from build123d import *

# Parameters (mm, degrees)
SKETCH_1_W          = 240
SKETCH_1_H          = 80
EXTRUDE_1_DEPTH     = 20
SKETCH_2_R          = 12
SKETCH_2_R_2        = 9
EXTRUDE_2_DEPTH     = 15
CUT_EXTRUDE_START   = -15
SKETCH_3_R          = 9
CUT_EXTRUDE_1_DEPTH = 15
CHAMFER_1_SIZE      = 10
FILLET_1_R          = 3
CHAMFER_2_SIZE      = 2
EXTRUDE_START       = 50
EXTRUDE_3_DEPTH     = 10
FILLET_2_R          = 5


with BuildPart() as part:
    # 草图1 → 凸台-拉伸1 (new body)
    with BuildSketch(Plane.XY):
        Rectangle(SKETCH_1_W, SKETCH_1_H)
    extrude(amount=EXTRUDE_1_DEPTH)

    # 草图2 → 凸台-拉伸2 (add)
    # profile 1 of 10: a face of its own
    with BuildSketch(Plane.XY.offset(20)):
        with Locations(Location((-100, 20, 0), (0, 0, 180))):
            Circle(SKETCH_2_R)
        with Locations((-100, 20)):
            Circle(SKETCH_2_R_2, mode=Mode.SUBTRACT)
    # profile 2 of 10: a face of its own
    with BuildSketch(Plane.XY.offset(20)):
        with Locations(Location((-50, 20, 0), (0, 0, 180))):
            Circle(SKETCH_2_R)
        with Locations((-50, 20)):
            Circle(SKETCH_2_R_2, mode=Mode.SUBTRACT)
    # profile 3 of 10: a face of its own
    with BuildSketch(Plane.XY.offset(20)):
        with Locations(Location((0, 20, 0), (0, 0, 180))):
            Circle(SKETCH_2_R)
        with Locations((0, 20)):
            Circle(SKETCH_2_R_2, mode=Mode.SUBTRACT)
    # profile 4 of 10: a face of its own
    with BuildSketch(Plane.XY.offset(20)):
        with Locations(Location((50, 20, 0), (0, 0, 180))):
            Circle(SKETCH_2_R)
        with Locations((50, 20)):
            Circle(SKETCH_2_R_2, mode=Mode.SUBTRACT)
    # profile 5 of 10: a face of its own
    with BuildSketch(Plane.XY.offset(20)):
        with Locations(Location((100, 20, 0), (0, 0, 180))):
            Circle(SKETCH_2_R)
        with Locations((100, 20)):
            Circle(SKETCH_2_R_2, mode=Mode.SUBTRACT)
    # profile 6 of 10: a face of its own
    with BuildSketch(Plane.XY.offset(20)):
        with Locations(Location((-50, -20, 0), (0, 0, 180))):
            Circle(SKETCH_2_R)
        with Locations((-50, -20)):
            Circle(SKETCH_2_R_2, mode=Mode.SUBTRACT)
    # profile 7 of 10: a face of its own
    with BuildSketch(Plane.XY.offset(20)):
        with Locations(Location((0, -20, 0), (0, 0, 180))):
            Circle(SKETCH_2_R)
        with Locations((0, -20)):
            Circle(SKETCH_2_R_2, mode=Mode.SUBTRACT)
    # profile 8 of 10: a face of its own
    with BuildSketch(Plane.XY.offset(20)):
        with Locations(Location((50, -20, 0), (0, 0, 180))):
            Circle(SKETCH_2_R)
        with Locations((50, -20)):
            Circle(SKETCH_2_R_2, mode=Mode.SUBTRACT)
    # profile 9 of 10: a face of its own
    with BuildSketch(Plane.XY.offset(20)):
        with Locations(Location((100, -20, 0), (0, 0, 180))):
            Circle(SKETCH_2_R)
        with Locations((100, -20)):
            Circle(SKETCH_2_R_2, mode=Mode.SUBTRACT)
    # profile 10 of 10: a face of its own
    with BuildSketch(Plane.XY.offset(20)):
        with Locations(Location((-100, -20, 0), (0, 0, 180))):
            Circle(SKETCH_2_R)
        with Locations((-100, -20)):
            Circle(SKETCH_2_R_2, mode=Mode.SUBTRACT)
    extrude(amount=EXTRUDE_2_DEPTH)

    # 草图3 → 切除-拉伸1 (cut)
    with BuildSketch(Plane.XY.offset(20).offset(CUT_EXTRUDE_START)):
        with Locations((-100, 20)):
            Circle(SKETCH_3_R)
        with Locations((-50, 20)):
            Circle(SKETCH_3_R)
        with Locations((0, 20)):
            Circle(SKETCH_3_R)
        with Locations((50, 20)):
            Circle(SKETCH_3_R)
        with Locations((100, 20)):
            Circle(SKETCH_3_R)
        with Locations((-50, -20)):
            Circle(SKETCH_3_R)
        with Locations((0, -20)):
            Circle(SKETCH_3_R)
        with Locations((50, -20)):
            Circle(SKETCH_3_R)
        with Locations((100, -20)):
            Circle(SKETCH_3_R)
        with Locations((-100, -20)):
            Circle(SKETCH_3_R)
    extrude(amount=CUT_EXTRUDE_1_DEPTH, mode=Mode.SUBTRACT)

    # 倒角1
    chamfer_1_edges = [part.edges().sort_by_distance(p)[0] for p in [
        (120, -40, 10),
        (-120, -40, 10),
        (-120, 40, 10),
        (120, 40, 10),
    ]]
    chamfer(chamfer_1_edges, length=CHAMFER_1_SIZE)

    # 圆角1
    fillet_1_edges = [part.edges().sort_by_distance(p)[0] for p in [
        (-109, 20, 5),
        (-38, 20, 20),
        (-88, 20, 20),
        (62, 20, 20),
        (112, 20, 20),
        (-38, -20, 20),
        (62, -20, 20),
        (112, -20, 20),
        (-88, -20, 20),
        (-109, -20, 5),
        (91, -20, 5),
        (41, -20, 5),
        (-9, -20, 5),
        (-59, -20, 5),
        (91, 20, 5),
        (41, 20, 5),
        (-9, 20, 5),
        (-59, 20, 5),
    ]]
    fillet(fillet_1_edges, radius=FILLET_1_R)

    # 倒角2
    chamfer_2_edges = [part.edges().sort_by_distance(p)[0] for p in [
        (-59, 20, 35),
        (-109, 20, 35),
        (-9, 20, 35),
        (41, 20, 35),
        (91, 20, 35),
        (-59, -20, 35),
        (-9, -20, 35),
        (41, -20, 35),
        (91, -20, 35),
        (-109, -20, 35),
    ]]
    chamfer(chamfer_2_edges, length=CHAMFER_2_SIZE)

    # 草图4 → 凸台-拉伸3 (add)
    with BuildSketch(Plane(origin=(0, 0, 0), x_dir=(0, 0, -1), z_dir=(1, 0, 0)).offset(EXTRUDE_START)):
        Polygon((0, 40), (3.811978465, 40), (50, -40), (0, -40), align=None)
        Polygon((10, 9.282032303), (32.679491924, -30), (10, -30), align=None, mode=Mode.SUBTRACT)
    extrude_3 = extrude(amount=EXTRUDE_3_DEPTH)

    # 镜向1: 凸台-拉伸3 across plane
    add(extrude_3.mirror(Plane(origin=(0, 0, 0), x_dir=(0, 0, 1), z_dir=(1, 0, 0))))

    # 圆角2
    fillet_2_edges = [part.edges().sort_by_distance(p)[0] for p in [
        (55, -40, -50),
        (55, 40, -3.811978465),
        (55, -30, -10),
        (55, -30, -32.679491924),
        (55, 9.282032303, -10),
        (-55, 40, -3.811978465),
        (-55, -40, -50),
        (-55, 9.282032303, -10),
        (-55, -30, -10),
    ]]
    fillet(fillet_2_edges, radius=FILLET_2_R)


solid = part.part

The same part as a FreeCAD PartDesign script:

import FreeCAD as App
import Part
import Sketcher
from FreeCAD import Vector
Q = App.Units.Quantity


def edges_at(feature, points):
    """Names of the edges that pass closest to the given points."""
    edges = feature.Shape.Edges
    near = lambda p: min(range(len(edges)), key=lambda i: edges[i].distToShape(Part.Vertex(*p))[0])
    return sorted({f"Edge{near(p) + 1}" for p in points})

doc = App.newDocument("Part")
body = doc.addObject("PartDesign::Body", "Body")

# Sketch on XY plane
sketch1 = doc.addObject("Sketcher::SketchObject", "Sketch")
body.addObject(sketch1)
sketch1.AttachmentSupport = (doc.XY_Plane, [""])
sketch1.MapMode = "FlatFace"
sketch1.addGeometry([
    Part.LineSegment(Vector(-120, 40, 0), Vector(-120, -40, 0)),
    Part.LineSegment(Vector(-120, -40, 0), Vector(120, -40, 0)),
    Part.LineSegment(Vector(120, -40, 0), Vector(120, 40, 0)),
    Part.LineSegment(Vector(120, 40, 0), Vector(-120, 40, 0)),
], False)
sketch1.addConstraint([
    Sketcher.Constraint("Coincident", 0, 2, 1, 1),
    Sketcher.Constraint("Coincident", 1, 2, 2, 1),
    Sketcher.Constraint("Coincident", 2, 2, 3, 1),
    Sketcher.Constraint("Coincident", 3, 2, 0, 1),
    Sketcher.Constraint("Vertical", 0),
    Sketcher.Constraint("Horizontal", 1),
    Sketcher.Constraint("Vertical", 2),
    Sketcher.Constraint("Horizontal", 3),
    Sketcher.Constraint("Symmetric", 0, 2, 2, 2, -1, 1),
    Sketcher.Constraint("DistanceX", 1, 1, 1, 2, 240.0),
    Sketcher.Constraint("DistanceY", 0, 2, 0, 1, 80.0),
])
pad1 = doc.addObject("PartDesign::Pad", "Pad")
body.addObject(pad1)
pad1.Profile = sketch1
pad1.Length = 20

# Sketch on XY plane
sketch2 = doc.addObject("Sketcher::SketchObject", "Sketch001")
body.addObject(sketch2)
sketch2.AttachmentSupport = (doc.XY_Plane, [""])
sketch2.MapMode = "FlatFace"
sketch2.AttachmentOffset = App.Placement(Vector(0, 0, 20), App.Rotation())
sketch2.addGeometry([
    Part.Circle(Vector(-100, 20, 0), Vector(0, 0, 1), 12),  # 0
    Part.Circle(Vector(-100, 20, 0), Vector(0, 0, 1), 9),  # 1
    Part.Circle(Vector(-50, 20, 0), Vector(0, 0, 1), 12),  # 2
    Part.Circle(Vector(-50, 20, 0), Vector(0, 0, 1), 9),  # 3
    Part.Circle(Vector(0, 20, 0), Vector(0, 0, 1), 12),  # 4
    Part.Circle(Vector(0, 20, 0), Vector(0, 0, 1), 9),  # 5
    Part.Circle(Vector(50, 20, 0), Vector(0, 0, 1), 12),  # 6
    Part.Circle(Vector(50, 20, 0), Vector(0, 0, 1), 9),  # 7
    Part.Circle(Vector(100, 20, 0), Vector(0, 0, 1), 12),  # 8
    Part.Circle(Vector(100, 20, 0), Vector(0, 0, 1), 9),  # 9
    Part.Circle(Vector(-50, -20, 0), Vector(0, 0, 1), 12),  # 10
    Part.Circle(Vector(-50, -20, 0), Vector(0, 0, 1), 9),  # 11
    Part.Circle(Vector(0, -20, 0), Vector(0, 0, 1), 12),  # 12
    Part.Circle(Vector(0, -20, 0), Vector(0, 0, 1), 9),  # 13
    Part.Circle(Vector(50, -20, 0), Vector(0, 0, 1), 12),  # 14
    Part.Circle(Vector(50, -20, 0), Vector(0, 0, 1), 9),  # 15
    Part.Circle(Vector(100, -20, 0), Vector(0, 0, 1), 12),  # 16
    Part.Circle(Vector(100, -20, 0), Vector(0, 0, 1), 9),  # 17
    Part.Circle(Vector(-100, -20, 0), Vector(0, 0, 1), 12),  # 18
    Part.Circle(Vector(-100, -20, 0), Vector(0, 0, 1), 9),  # 19
], False)
sketch2.addConstraint([
    Sketcher.Constraint("Coincident", 1, 3, 0, 3),
    Sketcher.Constraint("Coincident", 3, 3, 2, 3),
    Sketcher.Constraint("Coincident", 5, 3, 4, 3),
    Sketcher.Constraint("Coincident", 7, 3, 6, 3),
    Sketcher.Constraint("Coincident", 9, 3, 8, 3),
    Sketcher.Constraint("Coincident", 11, 3, 10, 3),
    Sketcher.Constraint("Coincident", 13, 3, 12, 3),
    Sketcher.Constraint("Coincident", 15, 3, 14, 3),
    Sketcher.Constraint("Coincident", 17, 3, 16, 3),
    Sketcher.Constraint("Coincident", 19, 3, 18, 3),
    Sketcher.Constraint("Equal", 0, 2),
    Sketcher.Constraint("Equal", 1, 3),
    Sketcher.Constraint("Equal", 2, 4),
    Sketcher.Constraint("Equal", 3, 5),
    Sketcher.Constraint("Equal", 4, 6),
    Sketcher.Constraint("Equal", 5, 7),
    Sketcher.Constraint("Equal", 6, 8),
    Sketcher.Constraint("Equal", 7, 9),
    Sketcher.Constraint("Equal", 8, 10),
    Sketcher.Constraint("Equal", 9, 11),
    Sketcher.Constraint("Equal", 10, 12),
    Sketcher.Constraint("Equal", 11, 13),
    Sketcher.Constraint("Equal", 12, 14),
    Sketcher.Constraint("Equal", 13, 15),
    Sketcher.Constraint("Equal", 14, 16),
    Sketcher.Constraint("Equal", 15, 17),
    Sketcher.Constraint("Equal", 16, 18),
    Sketcher.Constraint("Equal", 17, 19),
    Sketcher.Constraint("Symmetric", 6, 3, 10, 3, -1, 1),
    Sketcher.Constraint("Symmetric", 4, 3, 12, 3, -1, 1),
    Sketcher.Constraint("Symmetric", 2, 3, 14, 3, -1, 1),
    Sketcher.Constraint("Symmetric", 0, 3, 16, 3, -1, 1),
    Sketcher.Constraint("Symmetric", 8, 3, 18, 3, -1, 1),
    Sketcher.Constraint("Symmetric", 2, 3, 6, 3, -2),
    Sketcher.Constraint("Symmetric", 0, 3, 8, 3, -2),
    Sketcher.Constraint("PointOnObject", 4, 3, -2),
    Sketcher.Constraint("Horizontal", 1, 3, 2, 3),
    Sketcher.Constraint("Horizontal", 3, 3, 4, 3),
    Sketcher.Constraint("Diameter", 0, 24.0),
    Sketcher.Constraint("Diameter", 1, 18.0),
    Sketcher.Constraint("DistanceX", 0, 3, -1, 1, 100.0),
    Sketcher.Constraint("DistanceY", -1, 1, 0, 3, 20.0),
    Sketcher.Constraint("DistanceX", 2, 3, -1, 1, 50.0),
])
pad2 = doc.addObject("PartDesign::Pad", "Pad001")
body.addObject(pad2)
pad2.Profile = sketch2
pad2.Length = 15

# Sketch on XY plane
sketch3 = doc.addObject("Sketcher::SketchObject", "Sketch002")
body.addObject(sketch3)
sketch3.AttachmentSupport = (doc.XY_Plane, [""])
sketch3.MapMode = "FlatFace"
sketch3.AttachmentOffset = App.Placement(Vector(0, 0, 5), App.Rotation())
sketch3.addGeometry([
    Part.Circle(Vector(-100, 20, 0), Vector(0, 0, 1), 9),  # 0
    Part.Circle(Vector(-50, 20, 0), Vector(0, 0, 1), 9),  # 1
    Part.Circle(Vector(0, 20, 0), Vector(0, 0, 1), 9),  # 2
    Part.Circle(Vector(50, 20, 0), Vector(0, 0, 1), 9),  # 3
    Part.Circle(Vector(100, 20, 0), Vector(0, 0, 1), 9),  # 4
    Part.Circle(Vector(-50, -20, 0), Vector(0, 0, 1), 9),  # 5
    Part.Circle(Vector(0, -20, 0), Vector(0, 0, 1), 9),  # 6
    Part.Circle(Vector(50, -20, 0), Vector(0, 0, 1), 9),  # 7
    Part.Circle(Vector(100, -20, 0), Vector(0, 0, 1), 9),  # 8
    Part.Circle(Vector(-100, -20, 0), Vector(0, 0, 1), 9),  # 9
], False)
sketch3.addConstraint([
    Sketcher.Constraint("Equal", 0, 1),
    Sketcher.Constraint("Equal", 1, 2),
    Sketcher.Constraint("Equal", 2, 3),
    Sketcher.Constraint("Equal", 3, 4),
    Sketcher.Constraint("Equal", 4, 5),
    Sketcher.Constraint("Equal", 5, 6),
    Sketcher.Constraint("Equal", 6, 7),
    Sketcher.Constraint("Equal", 7, 8),
    Sketcher.Constraint("Equal", 8, 9),
    Sketcher.Constraint("Symmetric", 3, 3, 5, 3, -1, 1),
    Sketcher.Constraint("Symmetric", 2, 3, 6, 3, -1, 1),
    Sketcher.Constraint("Symmetric", 1, 3, 7, 3, -1, 1),
    Sketcher.Constraint("Symmetric", 0, 3, 8, 3, -1, 1),
    Sketcher.Constraint("Symmetric", 4, 3, 9, 3, -1, 1),
    Sketcher.Constraint("Symmetric", 1, 3, 3, 3, -2),
    Sketcher.Constraint("Symmetric", 0, 3, 4, 3, -2),
    Sketcher.Constraint("PointOnObject", 2, 3, -2),
    Sketcher.Constraint("Horizontal", 0, 3, 1, 3),
    Sketcher.Constraint("Horizontal", 1, 3, 2, 3),
    Sketcher.Constraint("Diameter", 0, 18.0),
    Sketcher.Constraint("DistanceX", 0, 3, -1, 1, 100.0),
    Sketcher.Constraint("DistanceY", -1, 1, 0, 3, 20.0),
    Sketcher.Constraint("DistanceX", 1, 3, -1, 1, 50.0),
])
pocket1 = doc.addObject("PartDesign::Pocket", "Pocket")
body.addObject(pocket1)
pocket1.Profile = sketch3
pocket1.Length = 15
pocket1.Reversed = True
doc.recompute()

chamfer = doc.addObject("PartDesign::Chamfer", "Chamfer")
body.addObject(chamfer)
chamfer.Base = (pocket1, edges_at(pocket1, [
    (120, -40, 10),
    (-120, -40, 10),
    (-120, 40, 10),
    (120, 40, 10),
]))
chamfer.Size = 10
doc.recompute()

fillet = doc.addObject("PartDesign::Fillet", "Fillet")
body.addObject(fillet)
fillet.Base = (chamfer, edges_at(chamfer, [
    (-109, 20, 5),
    (-38, 20, 20),
    (-88, 20, 20),
    (62, 20, 20),
    (112, 20, 20),
    (-38, -20, 20),
    (62, -20, 20),
    (112, -20, 20),
    (-88, -20, 20),
    (-109, -20, 5),
    (91, -20, 5),
    (41, -20, 5),
    (-9, -20, 5),
    (-59, -20, 5),
    (91, 20, 5),
    (41, 20, 5),
    (-9, 20, 5),
    (-59, 20, 5),
]))
fillet.Radius = 3
doc.recompute()

chamfer2 = doc.addObject("PartDesign::Chamfer", "Chamfer001")
body.addObject(chamfer2)
chamfer2.Base = (fillet, edges_at(fillet, [
    (-59, 20, 35),
    (-109, 20, 35),
    (-9, 20, 35),
    (41, 20, 35),
    (91, 20, 35),
    (-59, -20, 35),
    (-9, -20, 35),
    (41, -20, 35),
    (91, -20, 35),
    (-109, -20, 35),
]))
chamfer2.Size = 2

# Sketch on YZ plane
sketch4 = doc.addObject("Sketcher::SketchObject", "Sketch003")
body.addObject(sketch4)
sketch4.AttachmentSupport = (doc.YZ_Plane, [""])
sketch4.MapMode = "FlatFace"
sketch4.AttachmentOffset = App.Placement(Vector(0, 0, 50), App.Rotation())
sketch4.addGeometry([
    Part.LineSegment(Vector(40, -3.811978, 0), Vector(40, 0, 0)),  # 0
    Part.LineSegment(Vector(40, 0, 0), Vector(-40, 0, 0)),  # 1
    Part.LineSegment(Vector(-40, 0, 0), Vector(-40, -50, 0)),  # 2
    Part.LineSegment(Vector(-40, -50, 0), Vector(40, -3.811978, 0)),  # 3
    Part.LineSegment(Vector(9.282032, -10, 0), Vector(-30, -32.679492, 0)),  # 4
    Part.LineSegment(Vector(-30, -32.679492, 0), Vector(-30, -10, 0)),  # 5
    Part.LineSegment(Vector(-30, -10, 0), Vector(9.282032, -10, 0)),  # 6
], False)
sketch4.addConstraint([
    Sketcher.Constraint("Coincident", 0, 2, 1, 1),
    Sketcher.Constraint("Coincident", 1, 2, 2, 1),
    Sketcher.Constraint("Coincident", 2, 2, 3, 1),
    Sketcher.Constraint("Coincident", 3, 2, 0, 1),
    Sketcher.Constraint("Coincident", 4, 2, 5, 1),
    Sketcher.Constraint("Coincident", 5, 2, 6, 1),
    Sketcher.Constraint("Coincident", 6, 2, 4, 1),
    Sketcher.Constraint("Vertical", 0),
    Sketcher.Constraint("Horizontal", 1),
    Sketcher.Constraint("Vertical", 2),
    Sketcher.Constraint("Vertical", 5),
    Sketcher.Constraint("Horizontal", 6),
    Sketcher.Constraint("Symmetric", 0, 2, 1, 2, -1, 1),
    Sketcher.Constraint("Parallel", 3, 4),
    Sketcher.Constraint("DistanceX", 1, 2, 1, 1, 80.0),
    Sketcher.Constraint("DistanceY", 2, 2, 2, 1, 50.0),
    Sketcher.Constraint("Angle", 3, Q("30 deg")),
    Sketcher.Constraint("DistanceX", 4, 2, -1, 1, 30.0),
    Sketcher.Constraint("DistanceY", 5, 2, -1, 1, 10.0),
    Sketcher.Constraint("DistanceY", 5, 1, 5, 2, 22.679492),
])
pad3 = doc.addObject("PartDesign::Pad", "Pad002")
body.addObject(pad3)
pad3.Profile = sketch4
pad3.Length = 10
doc.recompute()

mirrored = doc.addObject("PartDesign::Mirrored", "Mirrored")
body.addObject(mirrored)
mirrored.Originals = [pad3]
mirrored.MirrorPlane = (doc.YZ_Plane, [""])
body.Tip = mirrored
doc.recompute()

fillet2 = doc.addObject("PartDesign::Fillet", "Fillet001")
body.addObject(fillet2)
fillet2.Base = (mirrored, edges_at(mirrored, [
    (55, -40, -50),
    (55, 40, -3.812),
    (55, -30, -10),
    (55, -30, -32.679),
    (55, 9.282, -10),
    (-55, 40, -3.812),
    (-55, -40, -50),
    (-55, 9.282, -10),
    (-55, -30, -10),
]))
fillet2.Radius = 5

doc.recompute()
